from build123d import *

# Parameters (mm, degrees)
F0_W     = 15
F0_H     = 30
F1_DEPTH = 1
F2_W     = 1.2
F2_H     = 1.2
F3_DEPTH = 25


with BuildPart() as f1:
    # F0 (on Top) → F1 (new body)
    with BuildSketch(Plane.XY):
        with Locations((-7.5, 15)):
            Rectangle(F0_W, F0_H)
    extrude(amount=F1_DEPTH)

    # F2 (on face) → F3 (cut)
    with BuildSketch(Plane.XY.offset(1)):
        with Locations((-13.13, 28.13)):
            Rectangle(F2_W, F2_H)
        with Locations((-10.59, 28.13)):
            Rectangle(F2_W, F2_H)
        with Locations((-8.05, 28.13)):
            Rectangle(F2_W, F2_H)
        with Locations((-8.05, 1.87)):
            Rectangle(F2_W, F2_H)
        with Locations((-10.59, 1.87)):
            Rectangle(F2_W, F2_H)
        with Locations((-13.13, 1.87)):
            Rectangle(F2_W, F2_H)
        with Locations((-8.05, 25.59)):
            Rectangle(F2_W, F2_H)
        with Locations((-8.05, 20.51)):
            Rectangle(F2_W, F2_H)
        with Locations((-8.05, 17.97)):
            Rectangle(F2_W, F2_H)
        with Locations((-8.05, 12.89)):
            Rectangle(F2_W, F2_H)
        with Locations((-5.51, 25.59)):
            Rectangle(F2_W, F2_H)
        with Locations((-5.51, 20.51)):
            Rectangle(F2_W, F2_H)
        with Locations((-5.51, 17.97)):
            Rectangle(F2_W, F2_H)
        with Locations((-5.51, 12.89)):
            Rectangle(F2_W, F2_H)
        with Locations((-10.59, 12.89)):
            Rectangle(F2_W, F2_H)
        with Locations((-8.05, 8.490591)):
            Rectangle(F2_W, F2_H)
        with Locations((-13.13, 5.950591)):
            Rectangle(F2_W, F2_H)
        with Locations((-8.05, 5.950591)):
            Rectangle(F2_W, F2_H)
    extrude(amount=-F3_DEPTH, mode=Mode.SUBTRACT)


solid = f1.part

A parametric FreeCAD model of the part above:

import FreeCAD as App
import Part
import Sketcher
Q = App.Units.Quantity

doc = App.newDocument("Part")
params = doc.addObject("Spreadsheet::Sheet", "Params")
for row, (alias, value) in enumerate([
    ("sketch1_width", "15 mm"),
    ("sketch1_height", "30 mm"),
    ("pad1_length", "1 mm"),
    ("sketch2_width", "1.2 mm"),
    ("pocket1_length", "25 mm"),
], start=1):
    params.set(f"A{row}", alias)
    params.set(f"B{row}", "=" + value)
    params.setAlias(f"B{row}", alias)

body = doc.addObject("PartDesign::Body", "Body")

sketch1 = body.newObject("Sketcher::SketchObject", "Sketch")
sketch1.AttachmentSupport = (doc.getObject("XY_Plane"), [""])
sketch1.MapMode = "FlatFace"
sketch1.addGeometry([
    Part.LineSegment(App.Vector(-15, 30, 0), App.Vector(-15, 0, 0)),
    Part.LineSegment(App.Vector(-15, 0, 0), App.Vector(0, 0, 0)),
    Part.LineSegment(App.Vector(0, 0, 0), App.Vector(0, 30, 0)),
    Part.LineSegment(App.Vector(0, 30, 0), App.Vector(-15, 30, 0)),
], False)
sketch1.addConstraint([
    Sketcher.Constraint("Coincident", 0, 2, 1, 1),
    Sketcher.Constraint("Coincident", 1, 2, 2, 1),
    Sketcher.Constraint("Coincident", 2, 2, 3, 1),
    Sketcher.Constraint("Coincident", 3, 2, 0, 1),
    Sketcher.Constraint("Vertical", 0),
    Sketcher.Constraint("Horizontal", 1),
    Sketcher.Constraint("Vertical", 2),
    Sketcher.Constraint("Horizontal", 3),
    Sketcher.Constraint("Coincident", 1, 2, -1, 1),
    Sketcher.Constraint("DistanceX", 1, 1, 1, 2, Q("15 mm")),
    Sketcher.Constraint("DistanceY", 0, 2, 0, 1, Q("30 mm")),
])
sketch1.setExpression("Constraints[9]", "Params.sketch1_width")
sketch1.setExpression("Constraints[10]", "Params.sketch1_height")
pad1 = body.newObject("PartDesign::Pad", "Pad")
pad1.Profile = sketch1
pad1.setExpression("Length", "Params.pad1_length")

sketch2 = body.newObject("Sketcher::SketchObject", "Sketch001")
sketch2.AttachmentSupport = (doc.getObject("XY_Plane"), [""])
sketch2.MapMode = "FlatFace"
sketch2.AttachmentOffset = App.Placement(App.Vector(0, 0, 1), App.Rotation())
sketch2.addGeometry([
    Part.LineSegment(App.Vector(-13.7, 28.7, 0), App.Vector(-13.7, 27.5, 0)),
    Part.LineSegment(App.Vector(-13.7, 27.5, 0), App.Vector(-12.5, 27.5, 0)),
    Part.LineSegment(App.Vector(-12.5, 27.5, 0), App.Vector(-12.5, 28.7, 0)),
    Part.LineSegment(App.Vector(-12.5, 28.7, 0), App.Vector(-13.7, 28.7, 0)),
    Part.LineSegment(App.Vector(-11.2, 28.7, 0), App.Vector(-11.2, 27.5, 0)),
    Part.LineSegment(App.Vector(-11.2, 27.5, 0), App.Vector(-10, 27.5, 0)),
    Part.LineSegment(App.Vector(-10, 27.5, 0), App.Vector(-10, 28.7, 0)),
    Part.LineSegment(App.Vector(-10, 28.7, 0), App.Vector(-11.2, 28.7, 0)),
    Part.LineSegment(App.Vector(-8.7, 28.7, 0), App.Vector(-8.7, 27.5, 0)),
    Part.LineSegment(App.Vector(-8.7, 27.5, 0), App.Vector(-7.5, 27.5, 0)),
    Part.LineSegment(App.Vector(-7.5, 27.5, 0), App.Vector(-7.5, 28.7, 0)),
    Part.LineSegment(App.Vector(-7.5, 28.7, 0), App.Vector(-8.7, 28.7, 0)),
    Part.LineSegment(App.Vector(-8.7, 2.5, 0), App.Vector(-8.7, 1.3, 0)),
    Part.LineSegment(App.Vector(-8.7, 1.3, 0), App.Vector(-7.5, 1.3, 0)),
    Part.LineSegment(App.Vector(-7.5, 1.3, 0), App.Vector(-7.5, 2.5, 0)),
    Part.LineSegment(App.Vector(-7.5, 2.5, 0), App.Vector(-8.7, 2.5, 0)),
    Part.LineSegment(App.Vector(-11.2, 2.5, 0), App.Vector(-11.2, 1.3, 0)),
    Part.LineSegment(App.Vector(-11.2, 1.3, 0), App.Vector(-10, 1.3, 0)),
    Part.LineSegment(App.Vector(-10, 1.3, 0), App.Vector(-10, 2.5, 0)),
    Part.LineSegment(App.Vector(-10, 2.5, 0), App.Vector(-11.2, 2.5, 0)),
    Part.LineSegment(App.Vector(-13.7, 2.5, 0), App.Vector(-13.7, 1.3, 0)),
    Part.LineSegment(App.Vector(-13.7, 1.3, 0), App.Vector(-12.5, 1.3, 0)),
    Part.LineSegment(App.Vector(-12.5, 1.3, 0), App.Vector(-12.5, 2.5, 0)),
    Part.LineSegment(App.Vector(-12.5, 2.5, 0), App.Vector(-13.7, 2.5, 0)),
    Part.LineSegment(App.Vector(-8.7, 26.2, 0), App.Vector(-8.7, 25, 0)),
    Part.LineSegment(App.Vector(-8.7, 25, 0), App.Vector(-7.5, 25, 0)),
    Part.LineSegment(App.Vector(-7.5, 25, 0), App.Vector(-7.5, 26.2, 0)),
    Part.LineSegment(App.Vector(-7.5, 26.2, 0), App.Vector(-8.7, 26.2, 0)),
    Part.LineSegment(App.Vector(-8.7, 21.1, 0), App.Vector(-8.7, 19.9, 0)),
    Part.LineSegment(App.Vector(-8.7, 19.9, 0), App.Vector(-7.5, 19.9, 0)),
    Part.LineSegment(App.Vector(-7.5, 19.9, 0), App.Vector(-7.5, 21.1, 0)),
    Part.LineSegment(App.Vector(-7.5, 21.1, 0), App.Vector(-8.7, 21.1, 0)),
    Part.LineSegment(App.Vector(-8.7, 18.6, 0), App.Vector(-8.7, 17.4, 0)),
    Part.LineSegment(App.Vector(-8.7, 17.4, 0), App.Vector(-7.5, 17.4, 0)),
    Part.LineSegment(App.Vector(-7.5, 17.4, 0), App.Vector(-7.5, 18.6, 0)),
    Part.LineSegment(App.Vector(-7.5, 18.6, 0), App.Vector(-8.7, 18.6, 0)),
    Part.LineSegment(App.Vector(-8.7, 13.5, 0), App.Vector(-8.7, 12.3, 0)),
    Part.LineSegment(App.Vector(-8.7, 12.3, 0), App.Vector(-7.5, 12.3, 0)),
    Part.LineSegment(App.Vector(-7.5, 12.3, 0), App.Vector(-7.5, 13.5, 0)),
    Part.LineSegment(App.Vector(-7.5, 13.5, 0), App.Vector(-8.7, 13.5, 0)),
    Part.LineSegment(App.Vector(-6.1, 26.2, 0), App.Vector(-6.1, 25, 0)),
    Part.LineSegment(App.Vector(-6.1, 25, 0), App.Vector(-4.9, 25, 0)),
    Part.LineSegment(App.Vector(-4.9, 25, 0), App.Vector(-4.9, 26.2, 0)),
    Part.LineSegment(App.Vector(-4.9, 26.2, 0), App.Vector(-6.1, 26.2, 0)),
    Part.LineSegment(App.Vector(-6.1, 21.1, 0), App.Vector(-6.1, 19.9, 0)),
    Part.LineSegment(App.Vector(-6.1, 19.9, 0), App.Vector(-4.9, 19.9, 0)),
    Part.LineSegment(App.Vector(-4.9, 19.9, 0), App.Vector(-4.9, 21.1, 0)),
    Part.LineSegment(App.Vector(-4.9, 21.1, 0), App.Vector(-6.1, 21.1, 0)),
    Part.LineSegment(App.Vector(-6.1, 18.6, 0), App.Vector(-6.1, 17.4, 0)),
    Part.LineSegment(App.Vector(-6.1, 17.4, 0), App.Vector(-4.9, 17.4, 0)),
    Part.LineSegment(App.Vector(-4.9, 17.4, 0), App.Vector(-4.9, 18.6, 0)),
    Part.LineSegment(App.Vector(-4.9, 18.6, 0), App.Vector(-6.1, 18.6, 0)),
    Part.LineSegment(App.Vector(-6.1, 13.5, 0), App.Vector(-6.1, 12.3, 0)),
    Part.LineSegment(App.Vector(-6.1, 12.3, 0), App.Vector(-4.9, 12.3, 0)),
    Part.LineSegment(App.Vector(-4.9, 12.3, 0), App.Vector(-4.9, 13.5, 0)),
    Part.LineSegment(App.Vector(-4.9, 13.5, 0), App.Vector(-6.1, 13.5, 0)),
    Part.LineSegment(App.Vector(-11.2, 13.5, 0), App.Vector(-11.2, 12.3, 0)),
    Part.LineSegment(App.Vector(-11.2, 12.3, 0), App.Vector(-10, 12.3, 0)),
    Part.LineSegment(App.Vector(-10, 12.3, 0), App.Vector(-10, 13.5, 0)),
    Part.LineSegment(App.Vector(-10, 13.5, 0), App.Vector(-11.2, 13.5, 0)),
    Part.LineSegment(App.Vector(-8.7, 9.1, 0), App.Vector(-8.7, 7.9, 0)),
    Part.LineSegment(App.Vector(-8.7, 7.9, 0), App.Vector(-7.5, 7.9, 0)),
    Part.LineSegment(App.Vector(-7.5, 7.9, 0), App.Vector(-7.5, 9.1, 0)),
    Part.LineSegment(App.Vector(-7.5, 9.1, 0), App.Vector(-8.7, 9.1, 0)),
    Part.LineSegment(App.Vector(-13.7, 6.6, 0), App.Vector(-13.7, 5.4, 0)),
    Part.LineSegment(App.Vector(-13.7, 5.4, 0), App.Vector(-12.5, 5.4, 0)),
    Part.LineSegment(App.Vector(-12.5, 5.4, 0), App.Vector(-12.5, 6.6, 0)),
    Part.LineSegment(App.Vector(-12.5, 6.6, 0), App.Vector(-13.7, 6.6, 0)),
    Part.LineSegment(App.Vector(-8.7, 6.6, 0), App.Vector(-8.7, 5.4, 0)),
    Part.LineSegment(App.Vector(-8.7, 5.4, 0), App.Vector(-7.5, 5.4, 0)),
    Part.LineSegment(App.Vector(-7.5, 5.4, 0), App.Vector(-7.5, 6.6, 0)),
    Part.LineSegment(App.Vector(-7.5, 6.6, 0), App.Vector(-8.7, 6.6, 0)),
], False)
sketch2.addConstraint([
    Sketcher.Constraint("Coincident", 0, 2, 1, 1),
    Sketcher.Constraint("Coincident", 1, 2, 2, 1),
    Sketcher.Constraint("Coincident", 2, 2, 3, 1),
    Sketcher.Constraint("Coincident", 3, 2, 0, 1),
    Sketcher.Constraint("Coincident", 4, 2, 5, 1),
    Sketcher.Constraint("Coincident", 5, 2, 6, 1),
    Sketcher.Constraint("Coincident", 6, 2, 7, 1),
    Sketcher.Constraint("Coincident", 7, 2, 4, 1),
    Sketcher.Constraint("Coincident", 8, 2, 9, 1),
    Sketcher.Constraint("Coincident", 9, 2, 10, 1),
    Sketcher.Constraint("Coincident", 10, 2, 11, 1),
    Sketcher.Constraint("Coincident", 11, 2, 8, 1),
    Sketcher.Constraint("Coincident", 12, 2, 13, 1),
    Sketcher.Constraint("Coincident", 13, 2, 14, 1),
    Sketcher.Constraint("Coincident", 14, 2, 15, 1),
    Sketcher.Constraint("Coincident", 15, 2, 12, 1),
    Sketcher.Constraint("Coincident", 16, 2, 17, 1),
    Sketcher.Constraint("Coincident", 17, 2, 18, 1),
    Sketcher.Constraint("Coincident", 18, 2, 19, 1),
    Sketcher.Constraint("Coincident", 19, 2, 16, 1),
    Sketcher.Constraint("Coincident", 20, 2, 21, 1),
    Sketcher.Constraint("Coincident", 21, 2, 22, 1),
    Sketcher.Constraint("Coincident", 22, 2, 23, 1),
    Sketcher.Constraint("Coincident", 23, 2, 20, 1),
    Sketcher.Constraint("Coincident", 24, 2, 25, 1),
    Sketcher.Constraint("Coincident", 25, 2, 26, 1),
    Sketcher.Constraint("Coincident", 26, 2, 27, 1),
    Sketcher.Constraint("Coincident", 27, 2, 24, 1),
    Sketcher.Constraint("Coincident", 28, 2, 29, 1),
    Sketcher.Constraint("Coincident", 29, 2, 30, 1),
    Sketcher.Constraint("Coincident", 30, 2, 31, 1),
    Sketcher.Constraint("Coincident", 31, 2, 28, 1),
    Sketcher.Constraint("Coincident", 32, 2, 33, 1),
    Sketcher.Constraint("Coincident", 33, 2, 34, 1),
    Sketcher.Constraint("Coincident", 34, 2, 35, 1),
    Sketcher.Constraint("Coincident", 35, 2, 32, 1),
    Sketcher.Constraint("Coincident", 36, 2, 37, 1),
    Sketcher.Constraint("Coincident", 37, 2, 38, 1),
    Sketcher.Constraint("Coincident", 38, 2, 39, 1),
    Sketcher.Constraint("Coincident", 39, 2, 36, 1),
    Sketcher.Constraint("Coincident", 40, 2, 41, 1),
    Sketcher.Constraint("Coincident", 41, 2, 42, 1),
    Sketcher.Constraint("Coincident", 42, 2, 43, 1),
    Sketcher.Constraint("Coincident", 43, 2, 40, 1),
    Sketcher.Constraint("Coincident", 44, 2, 45, 1),
    Sketcher.Constraint("Coincident", 45, 2, 46, 1),
    Sketcher.Constraint("Coincident", 46, 2, 47, 1),
    Sketcher.Constraint("Coincident", 47, 2, 44, 1),
    Sketcher.Constraint("Coincident", 48, 2, 49, 1),
    Sketcher.Constraint("Coincident", 49, 2, 50, 1),
    Sketcher.Constraint("Coincident", 50, 2, 51, 1),
    Sketcher.Constraint("Coincident", 51, 2, 48, 1),
    Sketcher.Constraint("Coincident", 52, 2, 53, 1),
    Sketcher.Constraint("Coincident", 53, 2, 54, 1),
    Sketcher.Constraint("Coincident", 54, 2, 55, 1),
    Sketcher.Constraint("Coincident", 55, 2, 52, 1),
    Sketcher.Constraint("Coincident", 56, 2, 57, 1),
    Sketcher.Constraint("Coincident", 57, 2, 58, 1),
    Sketcher.Constraint("Coincident", 58, 2, 59, 1),
    Sketcher.Constraint("Coincident", 59, 2, 56, 1),
    Sketcher.Constraint("Coincident", 60, 2, 61, 1),
    Sketcher.Constraint("Coincident", 61, 2, 62, 1),
    Sketcher.Constraint("Coincident", 62, 2, 63, 1),
    Sketcher.Constraint("Coincident", 63, 2, 60, 1),
    Sketcher.Constraint("Coincident", 64, 2, 65, 1),
    Sketcher.Constraint("Coincident", 65, 2, 66, 1),
    Sketcher.Constraint("Coincident", 66, 2, 67, 1),
    Sketcher.Constraint("Coincident", 67, 2, 64, 1),
    Sketcher.Constraint("Coincident", 68, 2, 69, 1),
    Sketcher.Constraint("Coincident", 69, 2, 70, 1),
    Sketcher.Constraint("Coincident", 70, 2, 71, 1),
    Sketcher.Constraint("Coincident", 71, 2, 68, 1),
    Sketcher.Constraint("Vertical", 0),
    Sketcher.Constraint("Horizontal", 1),
    Sketcher.Constraint("Vertical", 2),
    Sketcher.Constraint("Horizontal", 3),
    Sketcher.Constraint("Vertical", 4),
    Sketcher.Constraint("Horizontal", 5),
    Sketcher.Constraint("Vertical", 6),
    Sketcher.Constraint("Horizontal", 7),
    Sketcher.Constraint("Vertical", 8),
    Sketcher.Constraint("Horizontal", 9),
    Sketcher.Constraint("Vertical", 10),
    Sketcher.Constraint("Horizontal", 11),
    Sketcher.Constraint("Vertical", 12),
    Sketcher.Constraint("Horizontal", 13),
    Sketcher.Constraint("Vertical", 14),
    Sketcher.Constraint("Horizontal", 15),
    Sketcher.Constraint("Vertical", 16),
    Sketcher.Constraint("Horizontal", 17),
    Sketcher.Constraint("Vertical", 18),
    Sketcher.Constraint("Horizontal", 19),
    Sketcher.Constraint("Vertical", 20),
    Sketcher.Constraint("Horizontal", 21),
    Sketcher.Constraint("Vertical", 22),
    Sketcher.Constraint("Horizontal", 23),
    Sketcher.Constraint("Vertical", 24),
    Sketcher.Constraint("Horizontal", 25),
    Sketcher.Constraint("Vertical", 26),
    Sketcher.Constraint("Horizontal", 27),
    Sketcher.Constraint("Vertical", 28),
    Sketcher.Constraint("Horizontal", 29),
    Sketcher.Constraint("Vertical", 30),
    Sketcher.Constraint("Horizontal", 31),
    Sketcher.Constraint("Vertical", 32),
    Sketcher.Constraint("Horizontal", 33),
    Sketcher.Constraint("Vertical", 34),
    Sketcher.Constraint("Horizontal", 35),
    Sketcher.Constraint("Vertical", 36),
    Sketcher.Constraint("Horizontal", 37),
    Sketcher.Constraint("Vertical", 38),
    Sketcher.Constraint("Horizontal", 39),
    Sketcher.Constraint("Vertical", 40),
    Sketcher.Constraint("Horizontal", 41),
    Sketcher.Constraint("Vertical", 42),
    Sketcher.Constraint("Horizontal", 43),
    Sketcher.Constraint("Vertical", 44),
    Sketcher.Constraint("Horizontal", 45),
    Sketcher.Constraint("Vertical", 46),
    Sketcher.Constraint("Horizontal", 47),
    Sketcher.Constraint("Vertical", 48),
    Sketcher.Constraint("Horizontal", 49),
    Sketcher.Constraint("Vertical", 50),
    Sketcher.Constraint("Horizontal", 51),
    Sketcher.Constraint("Vertical", 52),
    Sketcher.Constraint("Horizontal", 53),
    Sketcher.Constraint("Vertical", 54),
    Sketcher.Constraint("Horizontal", 55),
    Sketcher.Constraint("Vertical", 56),
    Sketcher.Constraint("Horizontal", 57),
    Sketcher.Constraint("Vertical", 58),
    Sketcher.Constraint("Horizontal", 59),
    Sketcher.Constraint("Vertical", 60),
    Sketcher.Constraint("Horizontal", 61),
    Sketcher.Constraint("Vertical", 62),
    Sketcher.Constraint("Horizontal", 63),
    Sketcher.Constraint("Vertical", 64),
    Sketcher.Constraint("Horizontal", 65),
    Sketcher.Constraint("Vertical", 66),
    Sketcher.Constraint("Horizontal", 67),
    Sketcher.Constraint("Vertical", 68),
    Sketcher.Constraint("Horizontal", 69),
    Sketcher.Constraint("Vertical", 70),
    Sketcher.Constraint("Horizontal", 71),
    Sketcher.Constraint("Horizontal", 1, 2, 4, 2),
    Sketcher.Constraint("Horizontal", 3, 2, 6, 2),
    Sketcher.Constraint("Horizontal", 5, 2, 8, 2),
    Sketcher.Constraint("Horizontal", 7, 2, 10, 2),
    Sketcher.Constraint("Horizontal", 13, 2, 16, 2),
    Sketcher.Constraint("Horizontal", 15, 2, 18, 2),
    Sketcher.Constraint("Horizontal", 17, 2, 20, 2),
    Sketcher.Constraint("Horizontal", 19, 2, 22, 2),
    Sketcher.Constraint("Horizontal", 25, 2, 40, 2),
    Sketcher.Constraint("Horizontal", 27, 2, 42, 2),
    Sketcher.Constraint("Horizontal", 29, 2, 44, 2),
    Sketcher.Constraint("Horizontal", 31, 2, 46, 2),
    Sketcher.Constraint("Horizontal", 33, 2, 48, 2),
    Sketcher.Constraint("Horizontal", 35, 2, 50, 2),
    Sketcher.Constraint("Horizontal", 37, 2, 52, 2),
    Sketcher.Constraint("Horizontal", 39, 2, 54, 2),
    Sketcher.Constraint("Horizontal", 53, 2, 56, 2),
    Sketcher.Constraint("Horizontal", 55, 2, 58, 2),
    Sketcher.Constraint("Horizontal", 65, 2, 68, 2),
    Sketcher.Constraint("Horizontal", 67, 2, 70, 2),
    Sketcher.Constraint("Vertical", 11, 2, 12, 2),
    Sketcher.Constraint("Vertical", 10, 2, 13, 2),
    Sketcher.Constraint("Vertical", 7, 2, 16, 2),
    Sketcher.Constraint("Vertical", 6, 2, 17, 2),
    Sketcher.Constraint("Vertical", 3, 2, 20, 2),
    Sketcher.Constraint("Vertical", 2, 2, 21, 2),
    Sketcher.Constraint("Vertical", 15, 2, 24, 2),
    Sketcher.Constraint("Vertical", 14, 2, 25, 2),
    Sketcher.Constraint("Vertical", 27, 2, 28, 2),
    Sketcher.Constraint("Vertical", 26, 2, 29, 2),
    Sketcher.Constraint("Vertical", 31, 2, 32, 2),
    Sketcher.Constraint("Vertical", 30, 2, 33, 2),
    Sketcher.Constraint("Vertical", 35, 2, 36, 2),
    Sketcher.Constraint("Vertical", 34, 2, 37, 2),
    Sketcher.Constraint("Vertical", 43, 2, 44, 2),
    Sketcher.Constraint("Vertical", 42, 2, 45, 2),
    Sketcher.Constraint("Vertical", 47, 2, 48, 2),
    Sketcher.Constraint("Vertical", 46, 2, 49, 2),
    Sketcher.Constraint("Vertical", 51, 2, 52, 2),
    Sketcher.Constraint("Vertical", 50, 2, 53, 2),
    Sketcher.Constraint("Vertical", 19, 2, 56, 2),
    Sketcher.Constraint("Vertical", 18, 2, 57, 2),
    Sketcher.Constraint("Vertical", 39, 2, 60, 2),
    Sketcher.Constraint("Vertical", 38, 2, 61, 2),
    Sketcher.Constraint("Vertical", 23, 2, 64, 2),
    Sketcher.Constraint("Vertical", 22, 2, 65, 2),
    Sketcher.Constraint("Vertical", 63, 2, 68, 2),
    Sketcher.Constraint("Vertical", 62, 2, 69, 2),
    Sketcher.Constraint("Equal", 3, 5),
    Sketcher.Constraint("Equal", 7, 9),
    Sketcher.Constraint("Equal", 39, 41),
    Sketcher.Constraint("Equal", 71, 0),
    Sketcher.Constraint("Equal", 10, 12),
    Sketcher.Constraint("Equal", 22, 24),
    Sketcher.Constraint("Equal", 26, 28),
    Sketcher.Constraint("Equal", 30, 32),
    Sketcher.Constraint("Equal", 34, 36),
    Sketcher.Constraint("Equal", 58, 60),
    Sketcher.Constraint("Equal", 62, 64),
    Sketcher.Constraint("DistanceX", 1, 1, 1, 2, Q("1.2 mm")),
    Sketcher.Constraint("DistanceX", 0, 2, -1, 1, Q("13.73 mm")),
    Sketcher.Constraint("DistanceY", -1, 1, 0, 2, Q("27.53 mm")),
    Sketcher.Constraint("DistanceX", 4, 2, -1, 1, Q("11.19 mm")),
    Sketcher.Constraint("DistanceX", 8, 2, -1, 1, Q("8.65 mm")),
    Sketcher.Constraint("DistanceY", -1, 1, 12, 2, Q("1.27 mm")),
    Sketcher.Constraint("DistanceY", -1, 1, 24, 2, Q("24.99 mm")),
    Sketcher.Constraint("DistanceY", -1, 1, 28, 2, Q("19.91 mm")),
    Sketcher.Constraint("DistanceY", -1, 1, 32, 2, Q("17.37 mm")),
    Sketcher.Constraint("DistanceY", -1, 1, 36, 2, Q("12.29 mm")),
    Sketcher.Constraint("DistanceX", 40, 2, -1, 1, Q("6.11 mm")),
    Sketcher.Constraint("DistanceY", -1, 1, 60, 2, Q("7.890591 mm")),
    Sketcher.Constraint("DistanceY", -1, 1, 64, 2, Q("5.350591 mm")),
])
sketch2.setExpression("Constraints[203]", "Params.sketch2_width")
pocket1 = body.newObject("PartDesign::Pocket", "Pocket")
pocket1.Profile = sketch2
pocket1.setExpression("Length", "Params.pocket1_length")

doc.recompute()
